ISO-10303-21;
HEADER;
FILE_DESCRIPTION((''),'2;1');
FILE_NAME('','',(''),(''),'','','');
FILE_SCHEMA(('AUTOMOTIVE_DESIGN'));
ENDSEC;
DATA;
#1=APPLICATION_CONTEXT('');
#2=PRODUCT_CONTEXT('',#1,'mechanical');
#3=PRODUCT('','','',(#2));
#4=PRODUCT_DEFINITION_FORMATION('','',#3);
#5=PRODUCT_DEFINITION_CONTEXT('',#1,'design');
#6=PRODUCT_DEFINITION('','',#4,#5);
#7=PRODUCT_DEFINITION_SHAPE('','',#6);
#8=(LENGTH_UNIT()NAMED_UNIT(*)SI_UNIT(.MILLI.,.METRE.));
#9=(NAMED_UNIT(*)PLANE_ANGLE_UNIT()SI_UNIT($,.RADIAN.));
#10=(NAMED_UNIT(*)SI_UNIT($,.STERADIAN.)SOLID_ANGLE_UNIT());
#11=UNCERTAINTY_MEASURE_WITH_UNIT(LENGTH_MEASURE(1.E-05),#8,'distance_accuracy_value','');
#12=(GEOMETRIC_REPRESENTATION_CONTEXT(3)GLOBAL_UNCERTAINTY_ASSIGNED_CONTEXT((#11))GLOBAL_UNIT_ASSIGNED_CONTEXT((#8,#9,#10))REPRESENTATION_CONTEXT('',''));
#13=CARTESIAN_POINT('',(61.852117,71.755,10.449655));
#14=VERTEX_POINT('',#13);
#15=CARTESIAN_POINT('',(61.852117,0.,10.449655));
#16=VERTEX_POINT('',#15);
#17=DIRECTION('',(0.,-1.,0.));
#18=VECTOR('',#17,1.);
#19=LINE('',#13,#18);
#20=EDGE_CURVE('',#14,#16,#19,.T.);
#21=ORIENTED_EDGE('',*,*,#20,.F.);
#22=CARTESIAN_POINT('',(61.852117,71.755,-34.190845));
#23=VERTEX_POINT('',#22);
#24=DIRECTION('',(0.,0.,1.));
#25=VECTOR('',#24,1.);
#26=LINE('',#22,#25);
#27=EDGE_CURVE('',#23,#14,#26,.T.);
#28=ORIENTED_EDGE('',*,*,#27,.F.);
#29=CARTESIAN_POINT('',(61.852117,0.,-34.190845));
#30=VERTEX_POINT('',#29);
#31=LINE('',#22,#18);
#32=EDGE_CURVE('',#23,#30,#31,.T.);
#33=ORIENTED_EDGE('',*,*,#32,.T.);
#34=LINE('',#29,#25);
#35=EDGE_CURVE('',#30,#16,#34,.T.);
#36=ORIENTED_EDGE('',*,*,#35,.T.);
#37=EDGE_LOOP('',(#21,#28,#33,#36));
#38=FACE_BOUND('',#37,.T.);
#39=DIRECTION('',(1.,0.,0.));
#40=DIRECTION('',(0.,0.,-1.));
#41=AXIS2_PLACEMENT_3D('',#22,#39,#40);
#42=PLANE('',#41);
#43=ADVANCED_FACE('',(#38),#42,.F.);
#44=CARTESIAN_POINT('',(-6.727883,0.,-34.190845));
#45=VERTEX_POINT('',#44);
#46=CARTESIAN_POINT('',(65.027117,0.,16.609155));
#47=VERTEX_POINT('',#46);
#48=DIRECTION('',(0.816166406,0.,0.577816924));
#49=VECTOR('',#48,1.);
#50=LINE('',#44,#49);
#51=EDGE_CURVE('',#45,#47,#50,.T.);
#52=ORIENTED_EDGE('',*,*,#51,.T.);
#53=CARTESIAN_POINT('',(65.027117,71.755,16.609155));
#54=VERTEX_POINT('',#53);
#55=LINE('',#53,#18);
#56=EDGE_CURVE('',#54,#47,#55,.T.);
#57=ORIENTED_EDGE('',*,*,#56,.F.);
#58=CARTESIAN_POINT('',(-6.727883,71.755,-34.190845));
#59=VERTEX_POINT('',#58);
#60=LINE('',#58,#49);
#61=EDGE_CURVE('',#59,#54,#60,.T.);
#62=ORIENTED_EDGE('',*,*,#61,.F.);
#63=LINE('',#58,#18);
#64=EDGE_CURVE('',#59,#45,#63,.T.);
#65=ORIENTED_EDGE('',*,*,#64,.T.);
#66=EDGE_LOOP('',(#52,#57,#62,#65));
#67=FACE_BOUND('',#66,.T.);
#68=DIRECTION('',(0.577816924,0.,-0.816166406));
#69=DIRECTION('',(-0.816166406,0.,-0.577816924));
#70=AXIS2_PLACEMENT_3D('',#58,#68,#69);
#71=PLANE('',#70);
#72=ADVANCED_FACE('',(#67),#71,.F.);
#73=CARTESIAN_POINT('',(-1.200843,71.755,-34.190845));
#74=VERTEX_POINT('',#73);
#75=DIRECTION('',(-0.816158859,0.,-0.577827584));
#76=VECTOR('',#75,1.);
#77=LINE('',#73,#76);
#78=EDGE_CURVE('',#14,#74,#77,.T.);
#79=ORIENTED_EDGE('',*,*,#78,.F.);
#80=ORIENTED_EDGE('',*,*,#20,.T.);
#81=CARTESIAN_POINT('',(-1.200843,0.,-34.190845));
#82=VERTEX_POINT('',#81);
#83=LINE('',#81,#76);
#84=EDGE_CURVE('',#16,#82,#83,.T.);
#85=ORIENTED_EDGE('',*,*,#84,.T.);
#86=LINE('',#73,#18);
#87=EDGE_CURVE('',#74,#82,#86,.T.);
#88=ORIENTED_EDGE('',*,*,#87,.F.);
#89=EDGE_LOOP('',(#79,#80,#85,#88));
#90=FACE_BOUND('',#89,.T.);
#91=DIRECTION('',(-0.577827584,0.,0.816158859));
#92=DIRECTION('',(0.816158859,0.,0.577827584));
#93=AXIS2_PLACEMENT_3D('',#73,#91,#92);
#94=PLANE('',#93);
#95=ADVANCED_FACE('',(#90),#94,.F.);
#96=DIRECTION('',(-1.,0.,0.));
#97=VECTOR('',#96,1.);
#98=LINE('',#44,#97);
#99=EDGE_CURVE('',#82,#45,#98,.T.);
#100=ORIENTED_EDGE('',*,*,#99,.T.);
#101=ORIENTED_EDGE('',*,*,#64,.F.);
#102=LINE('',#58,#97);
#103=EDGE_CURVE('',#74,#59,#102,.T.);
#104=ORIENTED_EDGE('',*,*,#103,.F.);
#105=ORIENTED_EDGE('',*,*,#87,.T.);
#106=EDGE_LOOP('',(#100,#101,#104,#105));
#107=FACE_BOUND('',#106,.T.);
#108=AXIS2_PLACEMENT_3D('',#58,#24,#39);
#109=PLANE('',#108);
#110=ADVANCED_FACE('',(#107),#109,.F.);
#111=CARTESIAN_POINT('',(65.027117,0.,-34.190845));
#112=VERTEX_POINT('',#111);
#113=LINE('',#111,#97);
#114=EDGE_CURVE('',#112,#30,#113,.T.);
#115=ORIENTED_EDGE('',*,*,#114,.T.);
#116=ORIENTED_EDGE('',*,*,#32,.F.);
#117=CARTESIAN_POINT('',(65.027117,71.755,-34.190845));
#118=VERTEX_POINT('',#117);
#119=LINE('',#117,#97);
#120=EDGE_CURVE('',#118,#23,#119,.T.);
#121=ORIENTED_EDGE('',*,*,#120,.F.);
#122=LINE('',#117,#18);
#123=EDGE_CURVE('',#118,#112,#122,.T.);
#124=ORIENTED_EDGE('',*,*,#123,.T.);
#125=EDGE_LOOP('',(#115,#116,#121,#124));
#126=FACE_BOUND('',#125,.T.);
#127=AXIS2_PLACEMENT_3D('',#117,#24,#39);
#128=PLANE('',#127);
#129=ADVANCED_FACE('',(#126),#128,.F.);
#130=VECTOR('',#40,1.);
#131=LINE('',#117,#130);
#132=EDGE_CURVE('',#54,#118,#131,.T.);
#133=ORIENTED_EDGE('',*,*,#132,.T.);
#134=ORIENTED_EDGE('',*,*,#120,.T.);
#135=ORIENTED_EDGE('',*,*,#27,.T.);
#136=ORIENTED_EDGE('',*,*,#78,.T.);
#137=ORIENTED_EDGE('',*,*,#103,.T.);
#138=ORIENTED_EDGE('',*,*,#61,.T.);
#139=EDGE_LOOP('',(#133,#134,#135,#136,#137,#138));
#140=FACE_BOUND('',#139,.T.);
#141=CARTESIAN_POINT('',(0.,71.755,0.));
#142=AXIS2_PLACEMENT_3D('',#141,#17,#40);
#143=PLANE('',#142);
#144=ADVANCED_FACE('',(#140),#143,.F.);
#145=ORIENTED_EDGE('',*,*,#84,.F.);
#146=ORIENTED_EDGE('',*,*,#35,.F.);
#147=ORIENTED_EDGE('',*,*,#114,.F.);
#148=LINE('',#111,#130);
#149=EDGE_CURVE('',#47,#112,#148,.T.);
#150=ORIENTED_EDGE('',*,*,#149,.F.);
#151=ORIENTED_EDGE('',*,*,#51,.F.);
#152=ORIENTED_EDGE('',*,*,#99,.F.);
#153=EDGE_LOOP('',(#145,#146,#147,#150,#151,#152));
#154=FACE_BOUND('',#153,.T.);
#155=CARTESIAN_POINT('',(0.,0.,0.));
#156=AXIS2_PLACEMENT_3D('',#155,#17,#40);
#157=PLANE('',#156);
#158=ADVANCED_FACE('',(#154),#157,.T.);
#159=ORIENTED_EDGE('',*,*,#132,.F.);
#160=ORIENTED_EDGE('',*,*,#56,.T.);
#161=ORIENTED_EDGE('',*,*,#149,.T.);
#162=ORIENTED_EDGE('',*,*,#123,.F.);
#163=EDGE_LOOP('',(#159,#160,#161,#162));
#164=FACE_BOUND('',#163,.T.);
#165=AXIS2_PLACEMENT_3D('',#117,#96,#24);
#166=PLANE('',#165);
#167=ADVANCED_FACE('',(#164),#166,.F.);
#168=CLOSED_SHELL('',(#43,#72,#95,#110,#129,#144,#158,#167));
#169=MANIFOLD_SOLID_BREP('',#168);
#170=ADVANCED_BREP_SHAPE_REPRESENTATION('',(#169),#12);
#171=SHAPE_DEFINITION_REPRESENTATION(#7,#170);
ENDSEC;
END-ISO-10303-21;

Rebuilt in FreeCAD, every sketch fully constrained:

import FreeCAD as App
import Part
import Sketcher
Q = App.Units.Quantity

doc = App.newDocument("Part")
body = doc.addObject("PartDesign::Body", "Body")

# Sketch on XZ plane
sketch1 = doc.addObject("Sketcher::SketchObject", "Sketch")
body.addObject(sketch1)
sketch1.AttachmentSupport = (doc.XZ_Plane, [""])
sketch1.MapMode = "FlatFace"
sketch1.addGeometry([
    Part.LineSegment(App.Vector(65, 16.6, 0), App.Vector(65, -34.2, 0)),  # 0
    Part.LineSegment(App.Vector(65, -34.2, 0), App.Vector(61.9, -34.2, 0)),  # 1
    Part.LineSegment(App.Vector(61.9, -34.2, 0), App.Vector(61.9, 10.4, 0)),  # 2
    Part.LineSegment(App.Vector(61.9, 10.4, 0), App.Vector(-1.2, -34.2, 0)),  # 3
    Part.LineSegment(App.Vector(-1.2, -34.2, 0), App.Vector(-6.7, -34.2, 0)),  # 4
    Part.LineSegment(App.Vector(-6.7, -34.2, 0), App.Vector(65, 16.6, 0)),  # 5
], False)
sketch1.addConstraint([
    Sketcher.Constraint("Coincident", 0, 2, 1, 1),
    Sketcher.Constraint("Coincident", 1, 2, 2, 1),
    Sketcher.Constraint("Coincident", 2, 2, 3, 1),
    Sketcher.Constraint("Coincident", 3, 2, 4, 1),
    Sketcher.Constraint("Coincident", 4, 2, 5, 1),
    Sketcher.Constraint("Coincident", 5, 2, 0, 1),
    Sketcher.Constraint("Vertical", 0),
    Sketcher.Constraint("Horizontal", 1),
    Sketcher.Constraint("Vertical", 2),
    Sketcher.Constraint("Horizontal", 4),
    Sketcher.Constraint("Horizontal", 1, 2, 3, 2),
    Sketcher.Constraint("DistanceY", 0, 2, 0, 1, Q("2 in")),
    Sketcher.Constraint("DistanceX", 4, 2, 1, 2, Q("2.7 in")),
    Sketcher.Constraint("DistanceX", 1, 2, 1, 1, Q("0.125 in")),
    Sketcher.Constraint("DistanceX", 4, 2, 4, 1, Q("0.2176 in")),
    Sketcher.Constraint("DistanceY", 2, 1, 2, 2, Q("1.7575 in")),
    Sketcher.Constraint("DistanceX", -1, 1, 0, 2, 65.027117),
    Sketcher.Constraint("DistanceY", 0, 2, -1, 1, 34.190845),
])
pad1 = doc.addObject("PartDesign::Pad", "Pad")
body.addObject(pad1)
pad1.Profile = sketch1
pad1.Length = Q("2.825 in")
pad1.Reversed = True

doc.recompute()
